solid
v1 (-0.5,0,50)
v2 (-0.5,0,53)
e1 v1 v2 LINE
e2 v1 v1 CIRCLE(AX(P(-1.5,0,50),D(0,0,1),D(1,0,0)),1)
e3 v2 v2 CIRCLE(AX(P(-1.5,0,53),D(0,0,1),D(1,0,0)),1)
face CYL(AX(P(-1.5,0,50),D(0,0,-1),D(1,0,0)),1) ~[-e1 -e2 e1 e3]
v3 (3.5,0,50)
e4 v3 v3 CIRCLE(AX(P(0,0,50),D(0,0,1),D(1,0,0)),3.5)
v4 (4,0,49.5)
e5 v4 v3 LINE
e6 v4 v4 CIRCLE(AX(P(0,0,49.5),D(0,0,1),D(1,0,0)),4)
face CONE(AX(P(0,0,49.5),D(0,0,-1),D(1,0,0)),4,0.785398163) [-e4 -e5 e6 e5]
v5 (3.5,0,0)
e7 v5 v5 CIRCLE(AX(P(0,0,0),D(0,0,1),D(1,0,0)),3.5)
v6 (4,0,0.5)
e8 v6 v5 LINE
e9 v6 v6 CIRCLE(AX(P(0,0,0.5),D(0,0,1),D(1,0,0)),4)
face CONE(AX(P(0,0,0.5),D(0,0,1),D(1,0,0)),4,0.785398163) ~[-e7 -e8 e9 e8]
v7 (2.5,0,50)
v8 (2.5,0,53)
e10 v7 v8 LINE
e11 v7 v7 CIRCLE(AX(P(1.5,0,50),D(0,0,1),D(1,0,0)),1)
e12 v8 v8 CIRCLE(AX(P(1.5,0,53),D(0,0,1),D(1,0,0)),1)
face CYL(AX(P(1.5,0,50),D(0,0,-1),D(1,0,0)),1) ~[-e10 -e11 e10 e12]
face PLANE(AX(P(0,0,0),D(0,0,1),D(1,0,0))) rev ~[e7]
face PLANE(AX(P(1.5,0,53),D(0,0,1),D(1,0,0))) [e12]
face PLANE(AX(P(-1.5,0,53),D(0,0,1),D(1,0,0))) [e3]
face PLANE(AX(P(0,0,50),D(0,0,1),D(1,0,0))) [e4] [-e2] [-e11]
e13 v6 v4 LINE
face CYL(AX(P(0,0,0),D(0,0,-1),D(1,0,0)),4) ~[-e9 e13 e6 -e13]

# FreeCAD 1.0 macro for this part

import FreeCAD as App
import Part
import Sketcher
Q = App.Units.Quantity


def edges_at(feature, points):
    """Names of the edges that pass closest to the given points."""
    edges = feature.Shape.Edges
    near = lambda p: min(range(len(edges)), key=lambda i: edges[i].distToShape(Part.Vertex(*p))[0])
    return sorted({f"Edge{near(p) + 1}" for p in points})

doc = App.newDocument("Part")
params = doc.addObject("Spreadsheet::Sheet", "Params")
for row, (alias, value) in enumerate([
    ("sketch1_diameter", "8 mm"),
    ("pad1_length", "50 mm"),
    ("chamfer_size", "0.5 mm"),
    ("sketch2_diameter", "2 mm"),
    ("pad2_length", "3 mm"),
], start=1):
    params.set(f"A{row}", alias)
    params.set(f"B{row}", "=" + value)
    params.setAlias(f"B{row}", alias)

body = doc.addObject("PartDesign::Body", "Body")

# Sketch on XY plane
sketch1 = body.newObject("Sketcher::SketchObject", "Sketch")
sketch1.AttachmentSupport = (doc.getObject("XY_Plane"), [""])
sketch1.MapMode = "FlatFace"
sketch1.addGeometry(Part.Circle(App.Vector(0, 0, 0), App.Vector(0, 0, 1), 4), False)
sketch1.addConstraint(Sketcher.Constraint("Coincident", 0, 3, -1, 1))
sketch1.addConstraint(Sketcher.Constraint("Diameter", 0, Q("8 mm")))
sketch1.setExpression("Constraints[1]", "Params.sketch1_diameter")
pad1 = body.newObject("PartDesign::Pad", "Pad")
pad1.Profile = sketch1
pad1.setExpression("Length", "Params.pad1_length")
doc.recompute()

chamfer = body.newObject("PartDesign::Chamfer", "Chamfer")
chamfer.Base = (pad1, edges_at(pad1, [(-4, 0, 50), (-4, 0, 0)]))
chamfer.setExpression("Size", "Params.chamfer_size")

# Sketch on XY plane
sketch2 = body.newObject("Sketcher::SketchObject", "Sketch001")
sketch2.AttachmentSupport = (doc.getObject("XY_Plane"), [""])
sketch2.MapMode = "FlatFace"
sketch2.AttachmentOffset = App.Placement(App.Vector(0, 0, 50), App.Rotation())
sketch2.addGeometry(Part.Circle(App.Vector(1.5, 0, 0), App.Vector(0, 0, 1), 1), False)
sketch2.addGeometry(Part.Circle(App.Vector(-1.5, 0, 0), App.Vector(0, 0, 1), 1), False)
sketch2.addConstraint(Sketcher.Constraint("Equal", 0, 1))
sketch2.addConstraint(Sketcher.Constraint("Symmetric", 0, 3, 1, 3, -1, 1))
sketch2.addConstraint(Sketcher.Constraint("PointOnObject", 0, 3, -1))
sketch2.addConstraint(Sketcher.Constraint("Diameter", 0, Q("2 mm")))
sketch2.addConstraint(Sketcher.Constraint("DistanceX", 1, 3, 0, 3, Q("3 mm")))
sketch2.setExpression("Constraints[3]", "Params.sketch2_diameter")
pad2 = body.newObject("PartDesign::Pad", "Pad001")
pad2.Profile = sketch2
pad2.setExpression("Length", "Params.pad2_length")

doc.recompute()
